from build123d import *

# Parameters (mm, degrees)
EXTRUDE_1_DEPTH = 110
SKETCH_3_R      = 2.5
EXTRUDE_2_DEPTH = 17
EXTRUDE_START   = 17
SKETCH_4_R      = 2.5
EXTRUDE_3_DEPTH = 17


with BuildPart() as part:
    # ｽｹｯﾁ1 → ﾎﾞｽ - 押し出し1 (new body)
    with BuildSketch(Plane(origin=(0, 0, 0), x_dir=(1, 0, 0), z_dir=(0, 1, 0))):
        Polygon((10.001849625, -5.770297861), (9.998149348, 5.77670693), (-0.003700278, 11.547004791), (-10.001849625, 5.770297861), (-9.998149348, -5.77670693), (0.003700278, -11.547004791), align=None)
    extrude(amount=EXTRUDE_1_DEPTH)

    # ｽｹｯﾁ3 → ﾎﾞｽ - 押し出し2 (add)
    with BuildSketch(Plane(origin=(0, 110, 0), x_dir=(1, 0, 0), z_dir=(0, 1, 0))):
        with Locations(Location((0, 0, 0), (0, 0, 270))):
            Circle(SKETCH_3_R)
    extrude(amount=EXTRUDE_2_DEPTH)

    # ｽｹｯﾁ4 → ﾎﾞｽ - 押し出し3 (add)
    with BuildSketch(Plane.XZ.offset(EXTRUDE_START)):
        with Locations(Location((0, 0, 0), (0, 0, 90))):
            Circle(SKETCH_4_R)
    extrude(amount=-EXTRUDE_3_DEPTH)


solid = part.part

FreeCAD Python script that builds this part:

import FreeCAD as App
import Part
import Sketcher

V = App.Vector

doc = App.newDocument("Part")
body = doc.addObject("PartDesign::Body", "Body")

sketch1 = doc.addObject("Sketcher::SketchObject", "Sketch")
body.addObject(sketch1)
sketch1.AttachmentSupport = (doc.XZ_Plane, [""])
sketch1.MapMode = "FlatFace"
sketch1.addGeometry([
    Part.LineSegment(V(10, 6, 0), V(10, -6, 0)),
    Part.LineSegment(V(10, -6, 0), V(0, -12, 0)),
    Part.LineSegment(V(0, -12, 0), V(-10, -6, 0)),
    Part.LineSegment(V(-10, -6, 0), V(-10, 6, 0)),
    Part.LineSegment(V(-10, 6, 0), V(0, 12, 0)),
    Part.LineSegment(V(0, 12, 0), V(10, 6, 0)),
], False)
sketch1.addConstraint([
    Sketcher.Constraint("Coincident", 0, 2, 1, 1),
    Sketcher.Constraint("Coincident", 1, 2, 2, 1),
    Sketcher.Constraint("Coincident", 2, 2, 3, 1),
    Sketcher.Constraint("Coincident", 3, 2, 4, 1),
    Sketcher.Constraint("Coincident", 4, 2, 5, 1),
    Sketcher.Constraint("Coincident", 5, 2, 0, 1),
    Sketcher.Constraint("Symmetric", 0, 2, 3, 2, -1, 1),
    Sketcher.Constraint("Symmetric", 1, 2, 4, 2, -1, 1),
    Sketcher.Constraint("Symmetric", 2, 2, 5, 2, -1, 1),
    Sketcher.Constraint("Equal", 0, 1),
    Sketcher.Constraint("Equal", 1, 2),
    Sketcher.Constraint("DistanceX", 2, 2, 0, 2, 19.999999),
    Sketcher.Constraint("DistanceX", 1, 2, -1, 1, 0.0037),
    Sketcher.Constraint("DistanceX", 2, 2, 3, 2, 0.0037),
    Sketcher.Constraint("DistanceY", 1, 2, 3, 2, 17.323712),
])
pad1 = doc.addObject("PartDesign::Pad", "Pad")
body.addObject(pad1)
pad1.Profile = sketch1
pad1.Length = 110
pad1.Reversed = True

sketch2 = doc.addObject("Sketcher::SketchObject", "Sketch001")
body.addObject(sketch2)
sketch2.AttachmentSupport = (doc.XZ_Plane, [""])
sketch2.MapMode = "FlatFace"
sketch2.AttachmentOffset = App.Placement(V(0, 0, -110), App.Rotation())
sketch2.addGeometry(Part.Circle(V(0, 0, 0), V(0, 0, 1), 2.5), False)
sketch2.addConstraint([
    Sketcher.Constraint("Coincident", 0, 3, -1, 1),
    Sketcher.Constraint("Diameter", 0, 5.0),
])
pad2 = doc.addObject("PartDesign::Pad", "Pad001")
body.addObject(pad2)
pad2.Profile = sketch2
pad2.Length = 17
pad2.Reversed = True

sketch3 = doc.addObject("Sketcher::SketchObject", "Sketch002")
body.addObject(sketch3)
sketch3.AttachmentSupport = (doc.XZ_Plane, [""])
sketch3.MapMode = "FlatFace"
sketch3.AttachmentOffset = App.Placement(V(0, 0, 17), App.Rotation())
sketch3.addGeometry(Part.Circle(V(0, 0, 0), V(0, 0, 1), 2.5), False)
sketch3.addConstraint([
    Sketcher.Constraint("Coincident", 0, 3, -1, 1),
    Sketcher.Constraint("Diameter", 0, 5.0),
])
pad3 = doc.addObject("PartDesign::Pad", "Pad002")
body.addObject(pad3)
pad3.Profile = sketch3
pad3.Length = 17
pad3.Reversed = True

doc.recompute()
